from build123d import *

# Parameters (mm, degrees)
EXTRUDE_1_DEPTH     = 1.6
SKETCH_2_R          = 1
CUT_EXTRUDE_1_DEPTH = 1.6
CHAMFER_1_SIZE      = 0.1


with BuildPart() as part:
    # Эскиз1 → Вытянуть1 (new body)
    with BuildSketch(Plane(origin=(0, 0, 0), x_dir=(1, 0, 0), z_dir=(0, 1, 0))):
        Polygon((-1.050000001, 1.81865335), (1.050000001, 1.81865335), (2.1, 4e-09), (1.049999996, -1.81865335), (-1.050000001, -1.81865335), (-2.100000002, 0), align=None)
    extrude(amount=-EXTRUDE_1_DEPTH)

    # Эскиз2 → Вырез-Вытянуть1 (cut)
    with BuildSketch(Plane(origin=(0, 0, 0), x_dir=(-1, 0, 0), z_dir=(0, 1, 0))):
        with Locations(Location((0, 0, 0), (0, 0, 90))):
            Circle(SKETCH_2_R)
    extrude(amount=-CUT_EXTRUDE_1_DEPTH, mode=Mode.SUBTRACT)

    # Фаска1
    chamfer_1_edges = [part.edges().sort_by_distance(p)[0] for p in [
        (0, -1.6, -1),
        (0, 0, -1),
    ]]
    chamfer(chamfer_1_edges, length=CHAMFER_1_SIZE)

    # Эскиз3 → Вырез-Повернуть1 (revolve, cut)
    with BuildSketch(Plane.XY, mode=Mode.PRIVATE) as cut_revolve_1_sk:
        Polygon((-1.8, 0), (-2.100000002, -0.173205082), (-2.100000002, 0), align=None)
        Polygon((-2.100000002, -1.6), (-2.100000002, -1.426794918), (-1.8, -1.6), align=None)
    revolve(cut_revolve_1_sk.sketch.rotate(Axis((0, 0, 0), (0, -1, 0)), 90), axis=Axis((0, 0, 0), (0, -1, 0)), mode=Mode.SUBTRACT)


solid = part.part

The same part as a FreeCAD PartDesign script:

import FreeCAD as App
import Part
import Sketcher
from FreeCAD import Vector
Q = App.Units.Quantity


def edges_at(feature, points):
    """Names of the edges that pass closest to the given points."""
    edges = feature.Shape.Edges
    near = lambda p: min(range(len(edges)), key=lambda i: edges[i].distToShape(Part.Vertex(*p))[0])
    return sorted({f"Edge{near(p) + 1}" for p in points})


def add_polygon(sketch, points):
    """Adds a closed chain of lines whose ends are joined by coincident constraints."""
    first, n = sketch.GeometryCount, len(points)
    for a, b in zip(points, points[1:] + points[:1]):
        sketch.addGeometry(Part.LineSegment(App.Vector(*a, 0), App.Vector(*b, 0)), False)
    for i in range(n):
        sketch.addConstraint(Sketcher.Constraint("Coincident", first + i, 2, first + (i + 1) % n, 1))

doc = App.newDocument("Part")
body = doc.addObject("PartDesign::Body", "Body")

# Sketch on XZ plane
sketch1 = body.newObject("Sketcher::SketchObject", "Sketch")
sketch1.AttachmentSupport = (doc.getObject("XZ_Plane"), [""])
sketch1.MapMode = "FlatFace"
add_polygon(sketch1, [(1.05, -1.818653), (-1.05, -1.818653), (-2.1, 0), (-1.05, 1.818653), (1.05, 1.818653), (2.1, 0)])  # lines 0-5
sketch1.addConstraint([
    Sketcher.Constraint("Horizontal", 0),
    Sketcher.Constraint("Horizontal", 3),
    Sketcher.Constraint("Symmetric", 0, 2, 3, 2, -1, 1),
    Sketcher.Constraint("Symmetric", 1, 2, 4, 2, -1, 1),
    Sketcher.Constraint("PointOnObject", 1, 2, -1),
    Sketcher.Constraint("Parallel", 2, 5),
    Sketcher.Constraint("Vertical", 0, 2, 2, 2),
    Sketcher.Constraint("Angle", 1, Q("120 deg")),
    Sketcher.Constraint("DistanceX", 0, 2, 0, 1, Q("2.1 mm")),
    Sketcher.Constraint("Distance", 1, Q("2.1 mm")),
])
pad1 = body.newObject("PartDesign::Pad", "Pad")
pad1.Profile = sketch1
pad1.Length = 1.6

# Sketch on XZ plane
sketch2 = body.newObject("Sketcher::SketchObject", "Sketch001")
sketch2.AttachmentSupport = (doc.getObject("XZ_Plane"), [""])
sketch2.MapMode = "FlatFace"
sketch2.addGeometry(Part.Circle(Vector(0, 0, 0), Vector(0, 0, 1), 1), False)
sketch2.addConstraint([
    Sketcher.Constraint("Coincident", 0, 3, -1, 1),
    Sketcher.Constraint("Diameter", 0, Q("2 mm")),
])
pocket1 = body.newObject("PartDesign::Pocket", "Pocket")
pocket1.Profile = sketch2
pocket1.Length = 1.6
pocket1.Reversed = True
doc.recompute()

chamfer = body.newObject("PartDesign::Chamfer", "Chamfer")
chamfer.Base = (pocket1, edges_at(pocket1, [(0, -1.6, -1), (0, 0, -1)]))
chamfer.Size = 0.1

# Sketch on XY plane
sketch3 = body.newObject("Sketcher::SketchObject", "Sketch002")
sketch3.AttachmentSupport = (doc.getObject("XY_Plane"), [""])
sketch3.MapMode = "FlatFace"
add_polygon(sketch3, [(-2.1, -0.173205), (-1.8, 0), (-2.1, 0)])  # lines 0-2
add_polygon(sketch3, [(-2.1, -1.426795), (-2.1, -1.6), (-1.8, -1.6)])  # lines 3-5
sketch3.addConstraint([
    Sketcher.Constraint("Horizontal", 1),
    Sketcher.Constraint("Vertical", 2),
    Sketcher.Constraint("Vertical", 3),
    Sketcher.Constraint("Horizontal", 4),
    Sketcher.Constraint("PointOnObject", 0, 2, -1),
    Sketcher.Constraint("Vertical", 2, 2, 3, 2),
    Sketcher.Constraint("Vertical", 0, 2, 4, 2),
    Sketcher.Constraint("Equal", 2, 3),
    Sketcher.Constraint("Angle", 0, Q("30 deg")),
    Sketcher.Constraint("DistanceX", 1, 2, 1, 1, Q("0.3 mm")),
    Sketcher.Constraint("DistanceX", 0, 2, -1, 1, Q("1.8 mm")),
    Sketcher.Constraint("DistanceY", 3, 2, -1, 1, Q("1.6 mm")),
])
groove = body.newObject("PartDesign::Groove", "Groove")
groove.Profile = sketch3
groove.ReferenceAxis = (sketch3, ["V_Axis"])
groove.Angle = 360

doc.recompute()
